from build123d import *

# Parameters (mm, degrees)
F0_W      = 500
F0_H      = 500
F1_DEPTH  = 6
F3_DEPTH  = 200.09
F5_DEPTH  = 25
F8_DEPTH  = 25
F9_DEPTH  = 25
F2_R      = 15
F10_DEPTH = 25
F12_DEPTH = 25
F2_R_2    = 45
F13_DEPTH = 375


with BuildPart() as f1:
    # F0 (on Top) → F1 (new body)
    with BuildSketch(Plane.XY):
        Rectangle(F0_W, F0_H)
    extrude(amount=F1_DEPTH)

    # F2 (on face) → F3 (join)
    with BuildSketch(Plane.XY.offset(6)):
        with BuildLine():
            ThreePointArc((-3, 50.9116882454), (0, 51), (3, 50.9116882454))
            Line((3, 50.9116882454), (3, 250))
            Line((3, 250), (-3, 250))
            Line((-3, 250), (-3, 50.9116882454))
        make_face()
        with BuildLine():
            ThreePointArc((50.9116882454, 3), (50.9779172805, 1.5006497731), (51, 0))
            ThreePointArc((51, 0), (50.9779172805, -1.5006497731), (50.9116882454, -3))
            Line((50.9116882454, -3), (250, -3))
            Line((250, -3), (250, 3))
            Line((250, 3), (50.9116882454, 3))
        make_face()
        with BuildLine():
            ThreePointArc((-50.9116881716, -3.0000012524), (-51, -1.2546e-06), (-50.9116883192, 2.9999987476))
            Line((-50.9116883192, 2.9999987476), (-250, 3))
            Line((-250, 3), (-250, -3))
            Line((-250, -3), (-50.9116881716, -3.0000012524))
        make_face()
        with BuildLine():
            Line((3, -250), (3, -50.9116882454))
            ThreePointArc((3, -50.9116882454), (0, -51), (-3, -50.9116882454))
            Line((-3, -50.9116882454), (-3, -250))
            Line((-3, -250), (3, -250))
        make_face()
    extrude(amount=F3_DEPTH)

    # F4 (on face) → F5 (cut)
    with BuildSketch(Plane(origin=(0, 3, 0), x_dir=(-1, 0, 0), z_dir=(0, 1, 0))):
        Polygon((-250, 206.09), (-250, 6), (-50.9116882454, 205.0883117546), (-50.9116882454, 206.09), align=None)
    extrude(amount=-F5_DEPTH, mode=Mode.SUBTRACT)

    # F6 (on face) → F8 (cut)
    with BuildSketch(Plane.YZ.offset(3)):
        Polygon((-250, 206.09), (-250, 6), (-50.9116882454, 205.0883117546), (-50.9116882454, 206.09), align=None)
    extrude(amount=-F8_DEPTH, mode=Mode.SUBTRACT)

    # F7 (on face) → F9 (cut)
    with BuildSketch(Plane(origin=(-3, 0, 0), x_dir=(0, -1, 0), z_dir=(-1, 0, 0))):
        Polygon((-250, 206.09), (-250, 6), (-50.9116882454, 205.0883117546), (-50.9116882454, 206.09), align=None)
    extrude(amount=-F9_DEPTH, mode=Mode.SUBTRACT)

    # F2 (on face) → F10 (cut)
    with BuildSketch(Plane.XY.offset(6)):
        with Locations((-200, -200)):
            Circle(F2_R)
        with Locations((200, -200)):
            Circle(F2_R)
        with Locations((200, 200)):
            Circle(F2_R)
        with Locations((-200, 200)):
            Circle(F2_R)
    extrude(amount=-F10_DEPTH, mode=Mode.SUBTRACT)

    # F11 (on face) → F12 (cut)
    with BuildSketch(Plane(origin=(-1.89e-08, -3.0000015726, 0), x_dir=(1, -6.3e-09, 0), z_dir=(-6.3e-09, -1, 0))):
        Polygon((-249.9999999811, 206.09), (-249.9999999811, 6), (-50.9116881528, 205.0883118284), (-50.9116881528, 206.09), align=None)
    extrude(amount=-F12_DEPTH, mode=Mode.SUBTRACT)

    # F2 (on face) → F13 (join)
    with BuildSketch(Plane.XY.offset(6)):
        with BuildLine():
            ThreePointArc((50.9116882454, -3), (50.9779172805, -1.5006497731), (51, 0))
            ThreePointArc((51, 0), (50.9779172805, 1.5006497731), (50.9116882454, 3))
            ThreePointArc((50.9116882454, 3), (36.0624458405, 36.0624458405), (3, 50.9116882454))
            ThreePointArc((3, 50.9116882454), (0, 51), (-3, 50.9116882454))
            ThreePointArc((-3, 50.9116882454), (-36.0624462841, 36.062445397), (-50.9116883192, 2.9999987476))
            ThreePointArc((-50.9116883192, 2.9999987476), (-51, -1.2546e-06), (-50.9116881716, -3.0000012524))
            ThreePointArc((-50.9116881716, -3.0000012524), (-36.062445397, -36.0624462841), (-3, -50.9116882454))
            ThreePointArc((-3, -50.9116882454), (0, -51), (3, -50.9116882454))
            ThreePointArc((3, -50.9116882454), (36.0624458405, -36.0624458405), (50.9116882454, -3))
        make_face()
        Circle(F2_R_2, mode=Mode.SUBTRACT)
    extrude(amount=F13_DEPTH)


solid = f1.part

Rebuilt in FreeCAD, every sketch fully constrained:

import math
import FreeCAD as App
import Part
import Sketcher
from FreeCAD import Vector
Q = App.Units.Quantity

doc = App.newDocument("Part")
body = doc.addObject("PartDesign::Body", "Body")

sketch1 = body.newObject("Sketcher::SketchObject", "Sketch")
sketch1.AttachmentSupport = (doc.getObject("XY_Plane"), [""])
sketch1.MapMode = "FlatFace"
sketch1.addGeometry([
    Part.LineSegment(Vector(-250, 250, 0), Vector(-250, -250, 0)),
    Part.LineSegment(Vector(-250, -250, 0), Vector(250, -250, 0)),
    Part.LineSegment(Vector(250, -250, 0), Vector(250, 250, 0)),
    Part.LineSegment(Vector(250, 250, 0), Vector(-250, 250, 0)),
], False)
sketch1.addConstraint([
    Sketcher.Constraint("Coincident", 0, 2, 1, 1),
    Sketcher.Constraint("Coincident", 1, 2, 2, 1),
    Sketcher.Constraint("Coincident", 2, 2, 3, 1),
    Sketcher.Constraint("Coincident", 3, 2, 0, 1),
    Sketcher.Constraint("Vertical", 0),
    Sketcher.Constraint("Horizontal", 1),
    Sketcher.Constraint("Vertical", 2),
    Sketcher.Constraint("Horizontal", 3),
    Sketcher.Constraint("Symmetric", 0, 2, 2, 2, -1, 1),
    Sketcher.Constraint("Equal", 3, 0),
    Sketcher.Constraint("DistanceX", 1, 1, 1, 2, Q("500 mm")),
])
pad1 = body.newObject("PartDesign::Pad", "Pad")
pad1.Profile = sketch1
pad1.Length = 6

sketch2 = body.newObject("Sketcher::SketchObject", "Sketch001")
sketch2.AttachmentSupport = (doc.getObject("XY_Plane"), [""])
sketch2.MapMode = "FlatFace"
sketch2.AttachmentOffset = App.Placement(Vector(0, 0, 6), App.Rotation())
sketch2.addGeometry([
    Part.ArcOfCircle(Part.Circle(Vector(0, 0, 0), Vector(0, 0, 1), 51), math.radians(86.63), math.radians(93.37)),
    Part.LineSegment(Vector(3, 50.9, 0), Vector(3, 250, 0)),
    Part.LineSegment(Vector(3, 250, 0), Vector(-3, 250, 0)),
    Part.LineSegment(Vector(-3, 250, 0), Vector(-3, 50.9, 0)),
    Part.ArcOfCircle(Part.Circle(Vector(0, 0, 0), Vector(0, 0, 1), 51), math.radians(0), math.radians(3.37)),
    Part.ArcOfCircle(Part.Circle(Vector(0, 0, 0), Vector(0, 0, 1), 51), math.radians(-3.37), math.radians(0)),
    Part.LineSegment(Vector(50.9, -3, 0), Vector(250, -3, 0)),
    Part.LineSegment(Vector(250, -3, 0), Vector(250, 3, 0)),
    Part.LineSegment(Vector(250, 3, 0), Vector(50.9, 3, 0)),
    Part.ArcOfCircle(Part.Circle(Vector(0, 0, 0), Vector(0, 0, 1), 51), math.radians(176.63), math.radians(183.37)),
    Part.LineSegment(Vector(-50.9, 3, 0), Vector(-250, 3, 0)),
    Part.LineSegment(Vector(-250, 3, 0), Vector(-250, -3, 0)),
    Part.LineSegment(Vector(-250, -3, 0), Vector(-50.9, -3, 0)),
    Part.LineSegment(Vector(3, -250, 0), Vector(3, -50.9, 0)),
    Part.ArcOfCircle(Part.Circle(Vector(0, 0, 0), Vector(0, 0, 1), 51), math.radians(-93.37), math.radians(-86.63)),
    Part.LineSegment(Vector(-3, -50.9, 0), Vector(-3, -250, 0)),
    Part.LineSegment(Vector(-3, -250, 0), Vector(3, -250, 0)),
], False)
sketch2.addConstraint([
    Sketcher.Constraint("Coincident", 0, 1, 1, 1),
    Sketcher.Constraint("Coincident", 1, 2, 2, 1),
    Sketcher.Constraint("Coincident", 2, 2, 3, 1),
    Sketcher.Constraint("Coincident", 3, 2, 0, 2),
    Sketcher.Constraint("Tangent", 4, 1, 5, 2),
    Sketcher.Constraint("Coincident", 5, 1, 6, 1),
    Sketcher.Constraint("Coincident", 6, 2, 7, 1),
    Sketcher.Constraint("Coincident", 7, 2, 8, 1),
    Sketcher.Constraint("Coincident", 8, 2, 4, 2),
    Sketcher.Constraint("Coincident", 9, 1, 10, 1),
    Sketcher.Constraint("Coincident", 10, 2, 11, 1),
    Sketcher.Constraint("Coincident", 11, 2, 12, 1),
    Sketcher.Constraint("Coincident", 12, 2, 9, 2),
    Sketcher.Constraint("Coincident", 13, 2, 14, 2),
    Sketcher.Constraint("Coincident", 14, 1, 15, 1),
    Sketcher.Constraint("Coincident", 15, 2, 16, 1),
    Sketcher.Constraint("Coincident", 16, 2, 13, 1),
    Sketcher.Constraint("Vertical", 1),
    Sketcher.Constraint("Horizontal", 2),
    Sketcher.Constraint("Vertical", 3),
    Sketcher.Constraint("Horizontal", 6),
    Sketcher.Constraint("Vertical", 7),
    Sketcher.Constraint("Horizontal", 8),
    Sketcher.Constraint("Horizontal", 10),
    Sketcher.Constraint("Vertical", 11),
    Sketcher.Constraint("Horizontal", 12),
    Sketcher.Constraint("Vertical", 13),
    Sketcher.Constraint("Vertical", 15),
    Sketcher.Constraint("Horizontal", 16),
    Sketcher.Constraint("Coincident", 0, 3, -1, 1),
    Sketcher.Constraint("Coincident", 4, 3, -1, 1),
    Sketcher.Constraint("Coincident", 9, 3, -1, 1),
    Sketcher.Constraint("Coincident", 14, 3, -1, 1),
    Sketcher.Constraint("Equal", 0, 4),
    Sketcher.Constraint("Equal", 4, 5),
    Sketcher.Constraint("Equal", 5, 9),
    Sketcher.Constraint("Equal", 9, 14),
    Sketcher.Constraint("Symmetric", 6, 2, 10, 2, -1, 1),
    Sketcher.Constraint("Symmetric", 1, 2, 15, 2, -1, 1),
    Sketcher.Constraint("PointOnObject", 4, 1, -1),
    Sketcher.Constraint("Horizontal", 0, 1, 3, 2),
    Sketcher.Constraint("Horizontal", 8, 2, 9, 1),
    Sketcher.Constraint("Horizontal", 6, 2, 11, 2),
    Sketcher.Constraint("Horizontal", 13, 2, 14, 1),
    Sketcher.Constraint("Equal", 12, 1),
    Sketcher.Constraint("Equal", 16, 7),
    Sketcher.Constraint("Radius", 0, Q("51 mm")),
    Sketcher.Constraint("DistanceX", 2, 2, 2, 1, Q("6 mm")),
    Sketcher.Constraint("DistanceY", -1, 1, 1, 2, Q("250 mm")),
])
pad2 = body.newObject("PartDesign::Pad", "Pad001")
pad2.Profile = sketch2
pad2.Length = 200.09

sketch3 = body.newObject("Sketcher::SketchObject", "Sketch002")
sketch3.AttachmentSupport = (doc.getObject("XZ_Plane"), [""])
sketch3.MapMode = "FlatFace"
sketch3.AttachmentOffset = App.Placement(Vector(0, 0, -3), App.Rotation())
sketch3.addGeometry([
    Part.LineSegment(Vector(250, 206.1, 0), Vector(250, 6, 0)),
    Part.LineSegment(Vector(250, 6, 0), Vector(50.9, 205.1, 0)),
    Part.LineSegment(Vector(50.9, 205.1, 0), Vector(50.9, 206.1, 0)),
    Part.LineSegment(Vector(50.9, 206.1, 0), Vector(250, 206.1, 0)),
], False)
sketch3.addConstraint([
    Sketcher.Constraint("Coincident", 0, 2, 1, 1),
    Sketcher.Constraint("Coincident", 1, 2, 2, 1),
    Sketcher.Constraint("Coincident", 2, 2, 3, 1),
    Sketcher.Constraint("Coincident", 3, 2, 0, 1),
    Sketcher.Constraint("Vertical", 0),
    Sketcher.Constraint("Vertical", 2),
    Sketcher.Constraint("Horizontal", 3),
    Sketcher.Constraint("Angle", 1, Q("135 deg")),
    Sketcher.Constraint("DistanceX", -1, 1, 0, 2, Q("250 mm")),
    Sketcher.Constraint("DistanceY", -1, 1, 0, 2, Q("6 mm")),
    Sketcher.Constraint("DistanceY", 0, 2, 0, 1, Q("200.09 mm")),
    Sketcher.Constraint("DistanceX", 3, 1, 3, 2, Q("199.088312 mm")),
])
pocket1 = body.newObject("PartDesign::Pocket", "Pocket")
pocket1.Profile = sketch3
pocket1.Length = 25
pocket1.Reversed = True

sketch4 = body.newObject("Sketcher::SketchObject", "Sketch003")
sketch4.AttachmentSupport = (doc.getObject("YZ_Plane"), [""])
sketch4.MapMode = "FlatFace"
sketch4.AttachmentOffset = App.Placement(Vector(0, 0, 3), App.Rotation())
sketch4.addGeometry([
    Part.LineSegment(Vector(-250, 206.1, 0), Vector(-250, 6, 0)),
    Part.LineSegment(Vector(-250, 6, 0), Vector(-50.9, 205.1, 0)),
    Part.LineSegment(Vector(-50.9, 205.1, 0), Vector(-50.9, 206.1, 0)),
    Part.LineSegment(Vector(-50.9, 206.1, 0), Vector(-250, 206.1, 0)),
], False)
sketch4.addConstraint([
    Sketcher.Constraint("Coincident", 0, 2, 1, 1),
    Sketcher.Constraint("Coincident", 1, 2, 2, 1),
    Sketcher.Constraint("Coincident", 2, 2, 3, 1),
    Sketcher.Constraint("Coincident", 3, 2, 0, 1),
    Sketcher.Constraint("Vertical", 0),
    Sketcher.Constraint("Vertical", 2),
    Sketcher.Constraint("Horizontal", 3),
    Sketcher.Constraint("Angle", 1, Q("45 deg")),
    Sketcher.Constraint("DistanceX", 0, 2, -1, 1, Q("250 mm")),
    Sketcher.Constraint("DistanceY", -1, 1, 0, 2, Q("6 mm")),
    Sketcher.Constraint("DistanceY", 0, 2, 0, 1, Q("200.09 mm")),
    Sketcher.Constraint("DistanceX", 3, 2, 3, 1, Q("199.088312 mm")),
])
pocket2 = body.newObject("PartDesign::Pocket", "Pocket001")
pocket2.Profile = sketch4
pocket2.Length = 25

sketch5 = body.newObject("Sketcher::SketchObject", "Sketch004")
sketch5.AttachmentSupport = (doc.getObject("YZ_Plane"), [""])
sketch5.MapMode = "FlatFace"
sketch5.AttachmentOffset = App.Placement(Vector(0, 0, -3), App.Rotation())
sketch5.addGeometry([
    Part.LineSegment(Vector(250, 206.1, 0), Vector(250, 6, 0)),
    Part.LineSegment(Vector(250, 6, 0), Vector(50.9, 205.1, 0)),
    Part.LineSegment(Vector(50.9, 205.1, 0), Vector(50.9, 206.1, 0)),
    Part.LineSegment(Vector(50.9, 206.1, 0), Vector(250, 206.1, 0)),
], False)
sketch5.addConstraint([
    Sketcher.Constraint("Coincident", 0, 2, 1, 1),
    Sketcher.Constraint("Coincident", 1, 2, 2, 1),
    Sketcher.Constraint("Coincident", 2, 2, 3, 1),
    Sketcher.Constraint("Coincident", 3, 2, 0, 1),
    Sketcher.Constraint("Vertical", 0),
    Sketcher.Constraint("Vertical", 2),
    Sketcher.Constraint("Horizontal", 3),
    Sketcher.Constraint("Angle", 1, Q("135 deg")),
    Sketcher.Constraint("DistanceX", -1, 1, 0, 2, Q("250 mm")),
    Sketcher.Constraint("DistanceY", -1, 1, 0, 2, Q("6 mm")),
    Sketcher.Constraint("DistanceY", 0, 2, 0, 1, Q("200.09 mm")),
    Sketcher.Constraint("DistanceX", 3, 1, 3, 2, Q("199.088312 mm")),
])
pocket3 = body.newObject("PartDesign::Pocket", "Pocket002")
pocket3.Profile = sketch5
pocket3.Length = 25
pocket3.Reversed = True

sketch6 = body.newObject("Sketcher::SketchObject", "Sketch005")
sketch6.AttachmentSupport = (doc.getObject("XY_Plane"), [""])
sketch6.MapMode = "FlatFace"
sketch6.AttachmentOffset = App.Placement(Vector(0, 0, 6), App.Rotation())
sketch6.addGeometry([
    Part.Circle(Vector(-200, -200, 0), Vector(0, 0, 1), 15),
    Part.Circle(Vector(200, -200, 0), Vector(0, 0, 1), 15),
    Part.Circle(Vector(200, 200, 0), Vector(0, 0, 1), 15),
    Part.Circle(Vector(-200, 200, 0), Vector(0, 0, 1), 15),
], False)
sketch6.addConstraint([
    Sketcher.Constraint("Equal", 0, 1),
    Sketcher.Constraint("Equal", 1, 2),
    Sketcher.Constraint("Equal", 2, 3),
    Sketcher.Constraint("Symmetric", 0, 3, 2, 3, -1, 1),
    Sketcher.Constraint("Symmetric", 1, 3, 3, 3, -1, 1),
    Sketcher.Constraint("Symmetric", 0, 3, 1, 3, -2),
    Sketcher.Constraint("Diameter", 0, Q("30 mm")),
    Sketcher.Constraint("DistanceX", 0, 3, -1, 1, Q("200 mm")),
    Sketcher.Constraint("DistanceY", 0, 3, -1, 1, Q("200 mm")),
])
pocket4 = body.newObject("PartDesign::Pocket", "Pocket003")
pocket4.Profile = sketch6
pocket4.Length = 25

sketch7 = body.newObject("Sketcher::SketchObject", "Sketch006")
sketch7.AttachmentSupport = (doc.getObject("XZ_Plane"), [""])
sketch7.MapMode = "FlatFace"
sketch7.AttachmentOffset = App.Placement(Vector(0, 0, 3.000002), App.Rotation())
sketch7.addGeometry([
    Part.LineSegment(Vector(-250, 206.1, 0), Vector(-250, 6, 0)),
    Part.LineSegment(Vector(-250, 6, 0), Vector(-50.9, 205.1, 0)),
    Part.LineSegment(Vector(-50.9, 205.1, 0), Vector(-50.9, 206.1, 0)),
    Part.LineSegment(Vector(-50.9, 206.1, 0), Vector(-250, 206.1, 0)),
], False)
sketch7.addConstraint([
    Sketcher.Constraint("Coincident", 0, 2, 1, 1),
    Sketcher.Constraint("Coincident", 1, 2, 2, 1),
    Sketcher.Constraint("Coincident", 2, 2, 3, 1),
    Sketcher.Constraint("Coincident", 3, 2, 0, 1),
    Sketcher.Constraint("Vertical", 0),
    Sketcher.Constraint("Vertical", 2),
    Sketcher.Constraint("Horizontal", 3),
    Sketcher.Constraint("Angle", 1, Q("45 deg")),
    Sketcher.Constraint("DistanceX", 0, 2, -1, 1, Q("250 mm")),
    Sketcher.Constraint("DistanceY", -1, 1, 0, 2, Q("6 mm")),
    Sketcher.Constraint("DistanceY", 0, 2, 0, 1, Q("200.09 mm")),
    Sketcher.Constraint("DistanceX", 3, 2, 3, 1, Q("199.088312 mm")),
])
pocket5 = body.newObject("PartDesign::Pocket", "Pocket004")
pocket5.Profile = sketch7
pocket5.Length = 25

sketch8 = body.newObject("Sketcher::SketchObject", "Sketch007")
sketch8.AttachmentSupport = (doc.getObject("XY_Plane"), [""])
sketch8.MapMode = "FlatFace"
sketch8.AttachmentOffset = App.Placement(Vector(0, 0, 6), App.Rotation())
sketch8.addGeometry([
    Part.ArcOfCircle(Part.Circle(Vector(0, 0, 0), Vector(0, 0, 1), 51), math.radians(-3.37), math.radians(0)),
    Part.ArcOfCircle(Part.Circle(Vector(0, 0, 0), Vector(0, 0, 1), 51), math.radians(0), math.radians(3.37)),
    Part.ArcOfCircle(Part.Circle(Vector(0, 0, 0), Vector(0, 0, 1), 51), math.radians(3), math.radians(87)),
    Part.ArcOfCircle(Part.Circle(Vector(0, 0, 0), Vector(0, 0, 1), 51), math.radians(86.63), math.radians(93.37)),
    Part.ArcOfCircle(Part.Circle(Vector(0, 0, 0), Vector(0, 0, 1), 51), math.radians(93), math.radians(177)),
    Part.ArcOfCircle(Part.Circle(Vector(0, 0, 0), Vector(0, 0, 1), 51), math.radians(176.63), math.radians(183.37)),
    Part.ArcOfCircle(Part.Circle(Vector(0, 0, 0), Vector(0, 0, 1), 51), math.radians(-177), math.radians(-93)),
    Part.ArcOfCircle(Part.Circle(Vector(0, 0, 0), Vector(0, 0, 1), 51), math.radians(-93.37), math.radians(-86.63)),
    Part.ArcOfCircle(Part.Circle(Vector(0, 0, 0), Vector(0, 0, 1), 51), math.radians(-87), math.radians(-3)),
    Part.Circle(Vector(0, 0, 0), Vector(0, 0, 1), 45),
], False)
sketch8.addConstraint([
    Sketcher.Constraint("Tangent", 0, 2, 1, 1),
    Sketcher.Constraint("Tangent", 1, 2, 2, 1),
    Sketcher.Constraint("Tangent", 2, 2, 3, 1),
    Sketcher.Constraint("Tangent", 3, 2, 4, 1),
    Sketcher.Constraint("Tangent", 4, 2, 5, 1),
    Sketcher.Constraint("Tangent", 5, 2, 6, 1),
    Sketcher.Constraint("Tangent", 6, 2, 7, 1),
    Sketcher.Constraint("Tangent", 7, 2, 8, 1),
    Sketcher.Constraint("Tangent", 8, 2, 0, 1),
    Sketcher.Constraint("Coincident", 0, 3, -1, 1),
    Sketcher.Constraint("Coincident", 2, 3, -1, 1),
    Sketcher.Constraint("Coincident", 4, 3, -1, 1),
    Sketcher.Constraint("Coincident", 6, 3, -1, 1),
    Sketcher.Constraint("Coincident", 9, 3, -1, 1),
    Sketcher.Constraint("PointOnObject", 0, 2, -1),
    Sketcher.Constraint("Horizontal", 2, 2, 3, 2),
    Sketcher.Constraint("Horizontal", 1, 2, 4, 2),
    Sketcher.Constraint("Horizontal", 6, 2, 7, 2),
    Sketcher.Constraint("Horizontal", 5, 2, 8, 2),
    Sketcher.Constraint("Vertical", 4, 2, 5, 2),
    Sketcher.Constraint("Vertical", 3, 2, 6, 2),
    Sketcher.Constraint("Diameter", 9, Q("90 mm")),
    Sketcher.Constraint("Radius", 0, Q("51 mm")),
    Sketcher.Constraint("DistanceY", -1, 1, 1, 2, Q("3 mm")),
    Sketcher.Constraint("DistanceX", -1, 1, 2, 2, Q("3 mm")),
])
pad3 = body.newObject("PartDesign::Pad", "Pad002")
pad3.Profile = sketch8
pad3.Length = 375

doc.recompute()
